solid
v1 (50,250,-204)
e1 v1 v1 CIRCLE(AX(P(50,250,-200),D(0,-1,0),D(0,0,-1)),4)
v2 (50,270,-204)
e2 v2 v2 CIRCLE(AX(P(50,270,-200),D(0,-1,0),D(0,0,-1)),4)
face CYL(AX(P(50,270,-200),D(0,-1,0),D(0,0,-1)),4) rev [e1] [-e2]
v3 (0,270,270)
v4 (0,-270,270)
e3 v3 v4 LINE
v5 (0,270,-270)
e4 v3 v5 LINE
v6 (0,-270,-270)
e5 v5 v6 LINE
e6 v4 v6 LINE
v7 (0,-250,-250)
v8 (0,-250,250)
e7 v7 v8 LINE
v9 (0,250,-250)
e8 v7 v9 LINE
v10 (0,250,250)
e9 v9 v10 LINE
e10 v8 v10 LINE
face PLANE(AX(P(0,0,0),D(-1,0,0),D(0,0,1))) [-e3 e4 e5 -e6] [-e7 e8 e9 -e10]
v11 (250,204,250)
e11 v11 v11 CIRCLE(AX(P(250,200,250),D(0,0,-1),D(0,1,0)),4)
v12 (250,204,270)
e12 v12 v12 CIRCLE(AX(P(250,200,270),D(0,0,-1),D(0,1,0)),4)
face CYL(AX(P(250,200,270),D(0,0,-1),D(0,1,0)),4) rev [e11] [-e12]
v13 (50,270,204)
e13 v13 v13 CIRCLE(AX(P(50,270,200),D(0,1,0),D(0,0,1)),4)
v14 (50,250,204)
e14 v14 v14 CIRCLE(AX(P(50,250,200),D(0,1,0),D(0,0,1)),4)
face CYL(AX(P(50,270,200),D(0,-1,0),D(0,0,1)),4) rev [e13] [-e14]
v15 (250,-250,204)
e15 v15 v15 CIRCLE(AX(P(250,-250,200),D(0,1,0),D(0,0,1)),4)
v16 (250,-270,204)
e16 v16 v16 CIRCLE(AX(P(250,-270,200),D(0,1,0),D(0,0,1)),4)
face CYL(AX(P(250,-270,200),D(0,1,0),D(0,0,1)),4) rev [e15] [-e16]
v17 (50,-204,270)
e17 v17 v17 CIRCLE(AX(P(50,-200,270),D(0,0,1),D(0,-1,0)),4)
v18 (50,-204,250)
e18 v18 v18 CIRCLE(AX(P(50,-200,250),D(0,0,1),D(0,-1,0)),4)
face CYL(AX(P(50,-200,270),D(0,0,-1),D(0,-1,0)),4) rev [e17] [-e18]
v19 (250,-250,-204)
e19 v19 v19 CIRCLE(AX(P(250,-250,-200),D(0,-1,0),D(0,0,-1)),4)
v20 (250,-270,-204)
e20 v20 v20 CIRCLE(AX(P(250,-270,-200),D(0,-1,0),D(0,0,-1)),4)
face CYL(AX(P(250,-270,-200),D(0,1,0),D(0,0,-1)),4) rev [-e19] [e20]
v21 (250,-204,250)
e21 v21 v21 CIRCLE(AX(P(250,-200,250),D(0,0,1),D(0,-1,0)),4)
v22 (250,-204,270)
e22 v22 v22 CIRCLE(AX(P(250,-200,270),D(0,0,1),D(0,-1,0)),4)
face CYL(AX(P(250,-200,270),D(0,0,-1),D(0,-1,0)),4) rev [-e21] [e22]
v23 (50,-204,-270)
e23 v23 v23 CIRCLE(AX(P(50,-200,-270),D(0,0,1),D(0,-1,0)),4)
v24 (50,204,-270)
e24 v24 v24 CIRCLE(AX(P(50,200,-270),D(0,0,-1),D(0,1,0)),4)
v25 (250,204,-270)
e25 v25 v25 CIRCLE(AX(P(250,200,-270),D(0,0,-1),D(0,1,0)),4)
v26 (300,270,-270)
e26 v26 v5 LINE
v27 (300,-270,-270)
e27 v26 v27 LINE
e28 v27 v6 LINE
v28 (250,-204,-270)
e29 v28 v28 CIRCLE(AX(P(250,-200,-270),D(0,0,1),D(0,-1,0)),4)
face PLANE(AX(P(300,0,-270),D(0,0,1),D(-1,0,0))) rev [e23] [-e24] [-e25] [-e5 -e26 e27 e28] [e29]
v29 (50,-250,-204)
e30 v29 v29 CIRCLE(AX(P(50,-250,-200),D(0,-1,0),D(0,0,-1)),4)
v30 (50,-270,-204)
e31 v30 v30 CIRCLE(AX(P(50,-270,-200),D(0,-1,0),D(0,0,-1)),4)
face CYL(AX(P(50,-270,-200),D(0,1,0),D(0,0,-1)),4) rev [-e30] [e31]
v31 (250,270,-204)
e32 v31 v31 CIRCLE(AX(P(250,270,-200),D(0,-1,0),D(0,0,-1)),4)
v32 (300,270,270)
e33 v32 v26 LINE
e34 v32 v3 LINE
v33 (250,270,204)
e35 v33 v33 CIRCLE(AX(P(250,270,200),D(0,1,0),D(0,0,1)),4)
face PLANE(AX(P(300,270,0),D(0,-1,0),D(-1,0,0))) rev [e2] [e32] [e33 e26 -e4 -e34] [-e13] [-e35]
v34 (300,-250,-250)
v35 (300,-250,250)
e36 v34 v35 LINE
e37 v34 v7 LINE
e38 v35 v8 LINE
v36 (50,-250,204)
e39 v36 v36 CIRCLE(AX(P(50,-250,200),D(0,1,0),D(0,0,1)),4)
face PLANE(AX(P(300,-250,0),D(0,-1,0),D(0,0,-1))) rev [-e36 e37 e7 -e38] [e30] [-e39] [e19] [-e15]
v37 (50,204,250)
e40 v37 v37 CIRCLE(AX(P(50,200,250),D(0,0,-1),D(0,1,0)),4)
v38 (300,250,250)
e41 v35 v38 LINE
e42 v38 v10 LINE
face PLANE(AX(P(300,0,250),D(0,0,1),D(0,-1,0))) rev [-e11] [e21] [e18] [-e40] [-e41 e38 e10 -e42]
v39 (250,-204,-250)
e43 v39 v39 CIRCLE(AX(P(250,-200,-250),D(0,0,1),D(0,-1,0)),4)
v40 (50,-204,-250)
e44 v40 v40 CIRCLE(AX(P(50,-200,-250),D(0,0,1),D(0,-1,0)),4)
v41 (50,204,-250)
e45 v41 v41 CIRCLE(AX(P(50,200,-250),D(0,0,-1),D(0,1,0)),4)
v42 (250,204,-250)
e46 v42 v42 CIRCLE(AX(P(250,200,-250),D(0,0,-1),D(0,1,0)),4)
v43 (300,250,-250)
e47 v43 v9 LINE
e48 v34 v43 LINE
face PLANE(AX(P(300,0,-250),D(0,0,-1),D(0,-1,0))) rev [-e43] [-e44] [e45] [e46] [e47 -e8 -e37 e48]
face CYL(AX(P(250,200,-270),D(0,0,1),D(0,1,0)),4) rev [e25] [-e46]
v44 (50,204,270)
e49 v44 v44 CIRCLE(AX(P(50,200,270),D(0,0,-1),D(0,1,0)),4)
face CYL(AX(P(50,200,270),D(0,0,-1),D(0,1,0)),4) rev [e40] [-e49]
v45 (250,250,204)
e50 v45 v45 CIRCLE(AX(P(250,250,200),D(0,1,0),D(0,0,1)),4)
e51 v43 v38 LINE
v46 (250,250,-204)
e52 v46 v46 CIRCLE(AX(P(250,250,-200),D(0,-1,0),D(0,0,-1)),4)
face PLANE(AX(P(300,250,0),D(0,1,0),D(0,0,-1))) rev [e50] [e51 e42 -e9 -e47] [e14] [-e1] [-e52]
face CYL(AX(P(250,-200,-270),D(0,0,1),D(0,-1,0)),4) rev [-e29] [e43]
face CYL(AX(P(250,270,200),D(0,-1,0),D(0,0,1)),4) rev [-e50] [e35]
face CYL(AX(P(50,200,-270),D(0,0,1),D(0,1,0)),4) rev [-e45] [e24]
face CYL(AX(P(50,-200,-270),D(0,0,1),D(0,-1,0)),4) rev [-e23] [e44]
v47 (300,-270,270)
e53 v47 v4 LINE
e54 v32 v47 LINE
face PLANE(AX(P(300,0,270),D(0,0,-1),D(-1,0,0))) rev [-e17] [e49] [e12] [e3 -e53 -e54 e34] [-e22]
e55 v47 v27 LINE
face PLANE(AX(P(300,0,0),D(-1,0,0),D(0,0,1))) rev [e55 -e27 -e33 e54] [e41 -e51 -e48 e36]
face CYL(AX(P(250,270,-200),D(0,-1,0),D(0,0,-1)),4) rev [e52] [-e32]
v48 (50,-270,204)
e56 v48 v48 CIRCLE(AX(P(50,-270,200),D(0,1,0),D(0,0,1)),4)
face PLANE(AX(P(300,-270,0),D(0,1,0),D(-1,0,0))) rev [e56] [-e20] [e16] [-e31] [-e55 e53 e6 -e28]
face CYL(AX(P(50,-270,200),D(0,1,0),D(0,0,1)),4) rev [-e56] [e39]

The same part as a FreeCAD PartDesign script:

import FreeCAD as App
import Part
import Sketcher

V = App.Vector
Q = App.Units.Quantity

doc = App.newDocument("Part")
body = doc.addObject("PartDesign::Body", "Body")

sketch1 = body.newObject("Sketcher::SketchObject", "Sketch")
sketch1.AttachmentSupport = (doc.getObject("YZ_Plane"), [""])
sketch1.MapMode = "FlatFace"
sketch1.addGeometry([
    Part.LineSegment(V(0, 250, 0), V(250, 250, 0)),
    Part.LineSegment(V(250, 250, 0), V(270, 270, 0)),
    Part.LineSegment(V(270, 270, 0), V(0, 270, 0)),
    Part.LineSegment(V(0, 270, 0), V(0, 250, 0)),
], False)
sketch1.addConstraint([
    Sketcher.Constraint("Coincident", 0, 2, 1, 1),
    Sketcher.Constraint("Coincident", 1, 2, 2, 1),
    Sketcher.Constraint("Coincident", 2, 2, 3, 1),
    Sketcher.Constraint("Coincident", 3, 2, 0, 1),
    Sketcher.Constraint("Horizontal", 0),
    Sketcher.Constraint("Horizontal", 2),
    Sketcher.Constraint("Vertical", 3),
    Sketcher.Constraint("PointOnObject", 2, 2, -2),
    Sketcher.Constraint("DistanceX", 0, 1, 0, 2, Q("250 mm")),
    Sketcher.Constraint("DistanceX", 2, 2, 2, 1, Q("270 mm")),
    Sketcher.Constraint("DistanceY", 3, 2, 3, 1, Q("20 mm")),
    Sketcher.Constraint("DistanceY", -1, 1, 0, 2, Q("250 mm")),
])
pad1 = body.newObject("PartDesign::Pad", "Pad")
pad1.Profile = sketch1
pad1.Length = 300

sketch2 = body.newObject("Sketcher::SketchObject", "Sketch001")
sketch2.AttachmentSupport = (doc.getObject("XY_Plane"), [""])
sketch2.MapMode = "FlatFace"
sketch2.AttachmentOffset = App.Placement(V(0, 0, 250), App.Rotation())
sketch2.addGeometry([
    Part.Circle(V(250, 200, 0), V(0, 0, 1), 4),
    Part.Circle(V(50, 200, 0), V(0, 0, 1), 4),
], False)
sketch2.addConstraint([
    Sketcher.Constraint("Equal", 0, 1),
    Sketcher.Constraint("Horizontal", 0, 3, 1, 3),
    Sketcher.Constraint("Diameter", 0, Q("8 mm")),
    Sketcher.Constraint("DistanceX", -1, 1, 0, 3, Q("250 mm")),
    Sketcher.Constraint("DistanceY", -1, 1, 0, 3, Q("200 mm")),
    Sketcher.Constraint("DistanceX", -1, 1, 1, 3, Q("50 mm")),
])
pocket1 = body.newObject("PartDesign::Pocket", "Pocket")
pocket1.Profile = sketch2
pocket1.Type = "ThroughAll"
pocket1.Reversed = True
body2 = doc.addObject("PartDesign::Body", "Body001")
doc.recompute()

body2.BaseFeature = body
doc.recompute()

mirroring = doc.addObject("Part::Mirroring", "Mirroring")
mirroring.Source = body
mirroring.Base = V(300, 270, 270)
mirroring.Normal = V(0, -0.707106781, 0.707106781)
body3 = doc.addObject("PartDesign::Body", "Body002")
body3.BaseFeature = mirroring
boolean = body2.newObject("PartDesign::Boolean", "Boolean")
boolean.Type = "Fuse"
boolean.addObjects([body3])
doc.recompute()
body4 = doc.addObject("PartDesign::Body", "Body003")
doc.recompute()

body4.BaseFeature = body2
doc.recompute()

mirroring2 = doc.addObject("Part::Mirroring", "Mirroring001")
mirroring2.Source = body2
mirroring2.Base = V(300, 250, 0)
mirroring2.Normal = V(0, 0, 1)
body5 = doc.addObject("PartDesign::Body", "Body004")
body5.BaseFeature = mirroring2
boolean2 = body4.newObject("PartDesign::Boolean", "Boolean001")
boolean2.Type = "Fuse"
boolean2.addObjects([body5])
doc.recompute()
body6 = doc.addObject("PartDesign::Body", "Body005")
doc.recompute()

body6.BaseFeature = body4
doc.recompute()

mirroring3 = doc.addObject("Part::Mirroring", "Mirroring002")
mirroring3.Source = body4
mirroring3.Base = V(300, 0, -250)
mirroring3.Normal = V(0, 1, 0)
body7 = doc.addObject("PartDesign::Body", "Body006")
body7.BaseFeature = mirroring3
boolean3 = body6.newObject("PartDesign::Boolean", "Boolean002")
boolean3.Type = "Fuse"
boolean3.addObjects([body7])
doc.recompute()
mirroring.Visibility = False
mirroring2.Visibility = False
mirroring3.Visibility = False

doc.recompute()
